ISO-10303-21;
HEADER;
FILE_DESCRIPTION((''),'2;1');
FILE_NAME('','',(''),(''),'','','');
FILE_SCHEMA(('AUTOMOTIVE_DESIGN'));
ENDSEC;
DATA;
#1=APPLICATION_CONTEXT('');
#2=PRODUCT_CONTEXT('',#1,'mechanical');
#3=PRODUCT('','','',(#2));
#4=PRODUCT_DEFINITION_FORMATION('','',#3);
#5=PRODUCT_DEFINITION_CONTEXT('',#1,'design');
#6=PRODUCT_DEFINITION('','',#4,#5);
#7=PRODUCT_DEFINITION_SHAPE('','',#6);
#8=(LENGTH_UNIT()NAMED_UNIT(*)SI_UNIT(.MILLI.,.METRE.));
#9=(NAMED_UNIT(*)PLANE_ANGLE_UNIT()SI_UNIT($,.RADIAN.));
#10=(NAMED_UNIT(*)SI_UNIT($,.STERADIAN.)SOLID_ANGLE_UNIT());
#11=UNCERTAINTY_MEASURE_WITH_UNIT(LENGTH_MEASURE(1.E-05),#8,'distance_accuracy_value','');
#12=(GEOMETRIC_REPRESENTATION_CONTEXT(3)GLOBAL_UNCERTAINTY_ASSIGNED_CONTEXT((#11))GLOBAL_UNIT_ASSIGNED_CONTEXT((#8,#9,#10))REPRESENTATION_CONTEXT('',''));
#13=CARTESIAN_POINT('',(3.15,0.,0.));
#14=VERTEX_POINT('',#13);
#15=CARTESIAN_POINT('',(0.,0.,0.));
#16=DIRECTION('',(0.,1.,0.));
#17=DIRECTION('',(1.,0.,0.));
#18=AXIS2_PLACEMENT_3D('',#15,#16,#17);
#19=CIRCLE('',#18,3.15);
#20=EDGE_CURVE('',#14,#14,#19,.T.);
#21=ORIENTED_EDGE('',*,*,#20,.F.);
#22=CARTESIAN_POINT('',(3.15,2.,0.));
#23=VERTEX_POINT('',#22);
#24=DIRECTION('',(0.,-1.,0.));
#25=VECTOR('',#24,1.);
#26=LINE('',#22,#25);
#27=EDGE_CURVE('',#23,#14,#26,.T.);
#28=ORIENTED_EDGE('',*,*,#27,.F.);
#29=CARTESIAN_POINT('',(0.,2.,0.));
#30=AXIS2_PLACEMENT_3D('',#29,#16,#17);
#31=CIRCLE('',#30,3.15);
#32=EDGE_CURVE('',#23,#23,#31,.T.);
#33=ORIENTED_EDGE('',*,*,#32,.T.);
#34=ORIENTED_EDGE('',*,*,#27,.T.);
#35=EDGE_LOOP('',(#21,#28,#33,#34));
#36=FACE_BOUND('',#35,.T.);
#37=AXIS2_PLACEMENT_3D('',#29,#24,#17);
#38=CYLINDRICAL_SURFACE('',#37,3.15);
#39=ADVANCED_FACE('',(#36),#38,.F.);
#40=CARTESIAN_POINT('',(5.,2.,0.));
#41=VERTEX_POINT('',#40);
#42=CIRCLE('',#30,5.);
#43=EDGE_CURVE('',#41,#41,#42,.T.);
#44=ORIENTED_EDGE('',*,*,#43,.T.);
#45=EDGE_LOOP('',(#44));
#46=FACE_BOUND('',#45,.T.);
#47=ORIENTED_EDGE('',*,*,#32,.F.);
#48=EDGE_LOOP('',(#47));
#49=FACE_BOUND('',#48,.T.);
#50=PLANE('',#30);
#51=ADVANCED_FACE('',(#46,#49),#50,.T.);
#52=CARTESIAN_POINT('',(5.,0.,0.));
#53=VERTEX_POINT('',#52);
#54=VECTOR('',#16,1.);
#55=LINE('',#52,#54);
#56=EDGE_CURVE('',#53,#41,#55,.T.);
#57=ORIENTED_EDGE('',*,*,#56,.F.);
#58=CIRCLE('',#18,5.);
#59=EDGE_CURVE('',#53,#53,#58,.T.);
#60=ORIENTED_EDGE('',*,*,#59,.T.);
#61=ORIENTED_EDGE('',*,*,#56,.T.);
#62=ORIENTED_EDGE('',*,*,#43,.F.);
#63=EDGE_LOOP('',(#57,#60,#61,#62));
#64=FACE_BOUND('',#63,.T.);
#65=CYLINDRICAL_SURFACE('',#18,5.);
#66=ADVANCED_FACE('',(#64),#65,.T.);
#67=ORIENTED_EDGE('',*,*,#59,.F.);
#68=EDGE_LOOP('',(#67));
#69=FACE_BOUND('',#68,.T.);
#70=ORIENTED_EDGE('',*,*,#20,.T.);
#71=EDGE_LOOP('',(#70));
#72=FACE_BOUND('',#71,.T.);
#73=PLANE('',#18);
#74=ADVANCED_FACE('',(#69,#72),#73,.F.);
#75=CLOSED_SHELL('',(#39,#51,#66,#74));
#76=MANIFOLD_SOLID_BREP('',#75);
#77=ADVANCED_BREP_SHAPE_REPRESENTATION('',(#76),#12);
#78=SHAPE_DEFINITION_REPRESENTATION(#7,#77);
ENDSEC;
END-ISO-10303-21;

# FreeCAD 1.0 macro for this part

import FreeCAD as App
import Part
import Sketcher

doc = App.newDocument("Part")
body = doc.addObject("PartDesign::Body", "Body")

# Sketch on XY plane
sketch1 = body.newObject("Sketcher::SketchObject", "Sketch")
sketch1.AttachmentSupport = (doc.getObject("XY_Plane"), [""])
sketch1.MapMode = "FlatFace"
sketch1.addGeometry([
    Part.LineSegment(App.Vector(3.1, 0, 0), App.Vector(5, 0, 0)),
    Part.LineSegment(App.Vector(5, 0, 0), App.Vector(5, 2, 0)),
    Part.LineSegment(App.Vector(5, 2, 0), App.Vector(3.1, 2, 0)),
    Part.LineSegment(App.Vector(3.1, 2, 0), App.Vector(3.1, 0, 0)),
], False)
sketch1.addConstraint([
    Sketcher.Constraint("Coincident", 0, 2, 1, 1),
    Sketcher.Constraint("Coincident", 1, 2, 2, 1),
    Sketcher.Constraint("Coincident", 2, 2, 3, 1),
    Sketcher.Constraint("Coincident", 3, 2, 0, 1),
    Sketcher.Constraint("Horizontal", 0),
    Sketcher.Constraint("Vertical", 1),
    Sketcher.Constraint("Horizontal", 2),
    Sketcher.Constraint("Vertical", 3),
    Sketcher.Constraint("PointOnObject", 0, 2, -1),
    Sketcher.Constraint("DistanceY", 1, 1, 1, 2, 2.0),
    Sketcher.Constraint("DistanceX", -1, 1, 0, 2, 5.0),
    Sketcher.Constraint("DistanceX", 0, 1, 0, 2, 1.85),
])
revolution = body.newObject("PartDesign::Revolution", "Revolution")
revolution.Profile = sketch1
revolution.ReferenceAxis = (sketch1, ["V_Axis"])
revolution.Angle = 360

doc.recompute()
